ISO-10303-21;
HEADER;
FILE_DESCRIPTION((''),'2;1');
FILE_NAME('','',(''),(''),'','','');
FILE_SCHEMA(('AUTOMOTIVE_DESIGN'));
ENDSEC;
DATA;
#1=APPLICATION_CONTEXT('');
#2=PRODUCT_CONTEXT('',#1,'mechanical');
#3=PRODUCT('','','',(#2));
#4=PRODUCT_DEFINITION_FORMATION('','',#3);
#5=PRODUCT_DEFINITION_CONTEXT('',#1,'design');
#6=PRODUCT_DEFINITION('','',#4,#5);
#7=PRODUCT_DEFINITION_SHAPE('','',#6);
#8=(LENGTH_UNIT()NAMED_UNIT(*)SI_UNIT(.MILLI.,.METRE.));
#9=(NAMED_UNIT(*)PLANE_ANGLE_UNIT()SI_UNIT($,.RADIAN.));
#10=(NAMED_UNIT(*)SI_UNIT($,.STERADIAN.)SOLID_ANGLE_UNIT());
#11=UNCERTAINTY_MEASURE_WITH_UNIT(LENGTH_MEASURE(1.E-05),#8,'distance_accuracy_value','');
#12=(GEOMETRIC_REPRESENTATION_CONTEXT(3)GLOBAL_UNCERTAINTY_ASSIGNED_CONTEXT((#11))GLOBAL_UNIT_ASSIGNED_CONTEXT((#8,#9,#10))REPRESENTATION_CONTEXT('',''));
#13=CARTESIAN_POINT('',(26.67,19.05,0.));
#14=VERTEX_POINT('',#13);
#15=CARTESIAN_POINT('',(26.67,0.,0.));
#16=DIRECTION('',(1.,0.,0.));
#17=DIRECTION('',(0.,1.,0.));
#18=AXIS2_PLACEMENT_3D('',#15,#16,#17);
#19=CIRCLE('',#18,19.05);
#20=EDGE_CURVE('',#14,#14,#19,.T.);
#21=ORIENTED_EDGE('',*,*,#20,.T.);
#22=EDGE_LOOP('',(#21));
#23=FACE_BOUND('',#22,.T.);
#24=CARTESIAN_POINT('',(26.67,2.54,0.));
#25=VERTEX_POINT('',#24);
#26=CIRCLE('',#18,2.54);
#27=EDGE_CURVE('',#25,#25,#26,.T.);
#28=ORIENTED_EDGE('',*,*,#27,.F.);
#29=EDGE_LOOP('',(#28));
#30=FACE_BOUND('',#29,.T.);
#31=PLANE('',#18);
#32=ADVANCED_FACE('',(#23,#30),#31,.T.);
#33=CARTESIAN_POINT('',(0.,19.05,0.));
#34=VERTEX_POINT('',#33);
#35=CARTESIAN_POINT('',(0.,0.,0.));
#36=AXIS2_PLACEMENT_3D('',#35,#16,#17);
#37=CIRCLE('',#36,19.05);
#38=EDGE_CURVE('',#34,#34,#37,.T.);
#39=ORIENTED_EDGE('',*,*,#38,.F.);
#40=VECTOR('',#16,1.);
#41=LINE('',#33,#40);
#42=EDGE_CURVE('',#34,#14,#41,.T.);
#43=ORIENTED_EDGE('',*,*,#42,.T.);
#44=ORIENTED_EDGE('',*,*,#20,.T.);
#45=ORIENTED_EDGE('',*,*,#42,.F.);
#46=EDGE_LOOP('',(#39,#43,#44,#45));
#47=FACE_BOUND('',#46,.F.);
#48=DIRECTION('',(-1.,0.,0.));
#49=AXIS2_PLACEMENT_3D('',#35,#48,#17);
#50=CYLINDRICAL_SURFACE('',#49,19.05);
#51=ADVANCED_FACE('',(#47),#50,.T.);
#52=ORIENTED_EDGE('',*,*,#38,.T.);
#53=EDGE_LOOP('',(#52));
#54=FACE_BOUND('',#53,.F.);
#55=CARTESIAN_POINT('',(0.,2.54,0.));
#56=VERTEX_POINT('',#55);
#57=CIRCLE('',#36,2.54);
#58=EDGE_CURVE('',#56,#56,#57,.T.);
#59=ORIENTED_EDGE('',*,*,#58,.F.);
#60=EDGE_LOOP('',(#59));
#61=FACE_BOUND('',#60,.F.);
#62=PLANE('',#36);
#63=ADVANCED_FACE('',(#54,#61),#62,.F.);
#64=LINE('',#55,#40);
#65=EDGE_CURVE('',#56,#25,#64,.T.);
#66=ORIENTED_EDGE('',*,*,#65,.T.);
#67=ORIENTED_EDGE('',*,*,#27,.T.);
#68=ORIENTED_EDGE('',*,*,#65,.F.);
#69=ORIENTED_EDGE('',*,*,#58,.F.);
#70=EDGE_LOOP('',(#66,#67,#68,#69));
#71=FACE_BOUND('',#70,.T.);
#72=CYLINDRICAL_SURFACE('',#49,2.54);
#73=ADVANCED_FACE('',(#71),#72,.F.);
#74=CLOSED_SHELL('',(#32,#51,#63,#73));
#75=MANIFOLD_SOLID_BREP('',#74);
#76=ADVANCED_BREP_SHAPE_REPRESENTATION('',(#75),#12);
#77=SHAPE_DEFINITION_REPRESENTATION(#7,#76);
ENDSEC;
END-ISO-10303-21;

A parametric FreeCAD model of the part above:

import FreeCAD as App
import Part
import Sketcher

V = App.Vector
Q = App.Units.Quantity

doc = App.newDocument("Part")
body = doc.addObject("PartDesign::Body", "Body")

# Sketch on YZ plane
sketch1 = doc.addObject("Sketcher::SketchObject", "Sketch")
body.addObject(sketch1)
sketch1.AttachmentSupport = (doc.YZ_Plane, [""])
sketch1.MapMode = "FlatFace"
sketch1.addGeometry([
    Part.Circle(V(0, 0, 0), V(0, 0, 1), 19.1),
    Part.Circle(V(0, 0, 0), V(0, 0, 1), 2.5),
], False)
sketch1.addConstraint([
    Sketcher.Constraint("Coincident", 0, 3, -1, 1),
    Sketcher.Constraint("Coincident", 1, 3, -1, 1),
    Sketcher.Constraint("Diameter", 0, Q("1.5 in")),
    Sketcher.Constraint("Diameter", 1, Q("0.2 in")),
])
pad1 = doc.addObject("PartDesign::Pad", "Pad")
body.addObject(pad1)
pad1.Profile = sketch1
pad1.Length = Q("1.05 in")

doc.recompute()
